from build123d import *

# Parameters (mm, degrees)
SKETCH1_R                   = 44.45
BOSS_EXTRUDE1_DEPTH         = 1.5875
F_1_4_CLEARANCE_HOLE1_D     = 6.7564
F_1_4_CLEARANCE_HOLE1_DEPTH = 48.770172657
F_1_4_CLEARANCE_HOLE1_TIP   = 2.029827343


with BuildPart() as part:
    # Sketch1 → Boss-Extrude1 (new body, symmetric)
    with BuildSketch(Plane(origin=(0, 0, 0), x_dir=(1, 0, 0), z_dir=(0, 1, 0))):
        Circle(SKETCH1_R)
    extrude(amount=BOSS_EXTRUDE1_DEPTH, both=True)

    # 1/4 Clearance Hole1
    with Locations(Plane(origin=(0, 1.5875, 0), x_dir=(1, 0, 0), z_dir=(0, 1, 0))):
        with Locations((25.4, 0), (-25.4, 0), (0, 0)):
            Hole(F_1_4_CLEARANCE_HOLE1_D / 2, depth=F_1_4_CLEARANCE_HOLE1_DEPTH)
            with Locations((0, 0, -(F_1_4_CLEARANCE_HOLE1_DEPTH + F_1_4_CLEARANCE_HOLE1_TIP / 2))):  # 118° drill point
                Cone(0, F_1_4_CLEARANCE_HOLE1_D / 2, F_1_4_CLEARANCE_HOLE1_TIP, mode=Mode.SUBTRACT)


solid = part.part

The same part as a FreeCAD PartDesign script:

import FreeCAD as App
import Part
import Sketcher
from FreeCAD import Vector
Q = App.Units.Quantity

doc = App.newDocument("Part")
body = doc.addObject("PartDesign::Body", "Body")

# Sketch on XZ plane
sketch1 = body.newObject("Sketcher::SketchObject", "Sketch")
sketch1.AttachmentSupport = (doc.getObject("XZ_Plane"), [""])
sketch1.MapMode = "FlatFace"
sketch1.addGeometry(Part.Circle(Vector(0, 0, 0), Vector(0, 0, 1), 44), False)
sketch1.addConstraint([
    Sketcher.Constraint("Coincident", 0, 3, -1, 1),
    Sketcher.Constraint("Diameter", 0, Q("3.5 in")),
])
pad1 = body.newObject("PartDesign::Pad", "Pad")
pad1.Profile = sketch1
pad1.Length = Q("0.125 in")
pad1.Midplane = True

# Sketch on XZ plane
sketch2 = body.newObject("Sketcher::SketchObject", "Sketch001")
sketch2.AttachmentSupport = (doc.getObject("XZ_Plane"), [""])
sketch2.MapMode = "FlatFace"
sketch2.AttachmentOffset = App.Placement(Vector(0, 0, -0.0625 * 25.4), App.Rotation())
sketch2.addGeometry([
    Part.Circle(Vector(25.4, 0, 0), Vector(0, 0, 1), 3.4),
    Part.Circle(Vector(-25.4, 0, 0), Vector(0, 0, 1), 3.4),
    Part.Circle(Vector(0, 0, 0), Vector(0, 0, 1), 3.4),
], False)
sketch2.addConstraint([
    Sketcher.Constraint("Coincident", 2, 3, -1, 1),
    Sketcher.Constraint("Equal", 0, 1),
    Sketcher.Constraint("Equal", 1, 2),
    Sketcher.Constraint("Symmetric", 0, 3, 1, 3, -1, 1),
    Sketcher.Constraint("PointOnObject", 0, 3, -1),
    Sketcher.Constraint("Diameter", 0, Q("0.266 in")),
    Sketcher.Constraint("DistanceX", -1, 1, 0, 3, Q("1 in")),
])
doc.recompute()
hole = body.newObject("PartDesign::Hole", "Hole")
hole.Profile = sketch2
hole.ThreadType = "None"
hole.Diameter = Q("0.266 in")
hole.DepthType = "Dimension"
hole.Depth = 48.770173
hole.DrillPoint = "Angled"
hole.DrillPointAngle = 118
hole.Reversed = True

doc.recompute()
